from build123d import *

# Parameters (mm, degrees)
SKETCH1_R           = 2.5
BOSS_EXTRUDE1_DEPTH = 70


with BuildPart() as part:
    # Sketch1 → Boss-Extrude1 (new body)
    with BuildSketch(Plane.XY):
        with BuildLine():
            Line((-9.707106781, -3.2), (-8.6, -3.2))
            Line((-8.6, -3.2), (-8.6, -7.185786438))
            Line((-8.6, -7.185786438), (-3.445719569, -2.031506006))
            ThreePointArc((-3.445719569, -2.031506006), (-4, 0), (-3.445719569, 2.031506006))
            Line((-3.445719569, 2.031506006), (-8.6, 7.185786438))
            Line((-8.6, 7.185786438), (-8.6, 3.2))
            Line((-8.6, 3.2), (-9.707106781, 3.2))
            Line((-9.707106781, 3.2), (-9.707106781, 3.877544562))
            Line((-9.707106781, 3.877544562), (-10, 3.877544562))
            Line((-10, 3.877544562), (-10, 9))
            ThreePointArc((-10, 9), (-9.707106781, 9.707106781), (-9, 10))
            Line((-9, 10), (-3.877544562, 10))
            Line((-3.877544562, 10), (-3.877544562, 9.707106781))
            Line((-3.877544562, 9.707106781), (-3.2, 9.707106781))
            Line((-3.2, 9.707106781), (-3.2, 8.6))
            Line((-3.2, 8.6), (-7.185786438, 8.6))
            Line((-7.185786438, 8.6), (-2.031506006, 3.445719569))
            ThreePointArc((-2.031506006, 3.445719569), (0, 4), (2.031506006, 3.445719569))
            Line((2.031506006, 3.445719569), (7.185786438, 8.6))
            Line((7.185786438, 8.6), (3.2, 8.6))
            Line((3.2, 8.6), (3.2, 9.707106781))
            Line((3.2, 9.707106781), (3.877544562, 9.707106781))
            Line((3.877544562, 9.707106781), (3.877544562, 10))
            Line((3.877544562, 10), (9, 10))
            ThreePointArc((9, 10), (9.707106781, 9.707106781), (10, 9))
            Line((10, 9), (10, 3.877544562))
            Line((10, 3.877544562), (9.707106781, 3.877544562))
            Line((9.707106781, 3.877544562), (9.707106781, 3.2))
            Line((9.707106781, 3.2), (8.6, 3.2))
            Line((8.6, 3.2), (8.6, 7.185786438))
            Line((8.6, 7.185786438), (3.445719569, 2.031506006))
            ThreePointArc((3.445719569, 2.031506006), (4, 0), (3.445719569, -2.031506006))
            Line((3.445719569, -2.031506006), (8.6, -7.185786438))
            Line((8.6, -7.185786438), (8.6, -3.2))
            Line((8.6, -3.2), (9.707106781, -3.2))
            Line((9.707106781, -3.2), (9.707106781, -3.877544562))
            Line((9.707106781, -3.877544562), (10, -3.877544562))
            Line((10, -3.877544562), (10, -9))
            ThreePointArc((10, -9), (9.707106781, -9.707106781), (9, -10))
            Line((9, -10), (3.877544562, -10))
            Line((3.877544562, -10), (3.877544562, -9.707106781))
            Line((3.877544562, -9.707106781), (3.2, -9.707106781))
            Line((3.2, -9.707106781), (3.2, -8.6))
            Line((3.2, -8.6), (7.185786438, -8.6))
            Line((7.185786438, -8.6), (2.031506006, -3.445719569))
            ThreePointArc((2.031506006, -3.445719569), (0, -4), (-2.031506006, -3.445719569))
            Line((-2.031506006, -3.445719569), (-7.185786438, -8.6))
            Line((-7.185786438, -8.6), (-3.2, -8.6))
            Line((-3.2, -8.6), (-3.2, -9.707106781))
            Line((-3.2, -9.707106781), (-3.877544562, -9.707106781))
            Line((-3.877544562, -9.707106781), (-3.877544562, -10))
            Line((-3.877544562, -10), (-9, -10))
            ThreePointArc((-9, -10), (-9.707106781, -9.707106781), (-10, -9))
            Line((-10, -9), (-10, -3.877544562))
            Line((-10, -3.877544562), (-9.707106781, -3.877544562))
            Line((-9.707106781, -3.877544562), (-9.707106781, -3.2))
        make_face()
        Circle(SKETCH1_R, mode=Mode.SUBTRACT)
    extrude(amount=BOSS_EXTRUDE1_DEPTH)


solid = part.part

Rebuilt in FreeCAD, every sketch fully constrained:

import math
import FreeCAD as App
import Part
import Sketcher
Q = App.Units.Quantity

doc = App.newDocument("Part")
params = doc.addObject("Spreadsheet::Sheet", "Params")
for row, (alias, value) in enumerate([
    ("sketch1_diameter", "5 mm"),
    ("sketch1_radius", "1 mm"),
    ("sketch1_radius2", "4 mm"),
    ("pad1_length", "70 mm"),
], start=1):
    params.set(f"A{row}", alias)
    params.set(f"B{row}", "=" + value)
    params.setAlias(f"B{row}", alias)

body = doc.addObject("PartDesign::Body", "Body")

# Sketch on XY plane
sketch1 = body.newObject("Sketcher::SketchObject", "Sketch")
sketch1.AttachmentSupport = (doc.getObject("XY_Plane"), [""])
sketch1.MapMode = "FlatFace"
sketch1.addGeometry(Part.LineSegment(App.Vector(-8.6, -3.2, 0), App.Vector(-9.71, -3.2, 0)), False)
sketch1.addGeometry(Part.LineSegment(App.Vector(-9.71, -3.2, 0), App.Vector(-9.71, -3.88, 0)), False)
sketch1.addGeometry(Part.LineSegment(App.Vector(-9.71, -3.88, 0), App.Vector(-10, -3.88, 0)), False)
sketch1.addGeometry(Part.LineSegment(App.Vector(-10, -3.88, 0), App.Vector(-10, -9, 0)), False)
sketch1.addGeometry(Part.ArcOfCircle(Part.Circle(App.Vector(-9, -9, 0), App.Vector(0, 0, 1), 1), math.radians(-180), math.radians(-90)), False)
sketch1.addGeometry(Part.LineSegment(App.Vector(-9, -10, 0), App.Vector(-3.88, -10, 0)), False)
sketch1.addGeometry(Part.LineSegment(App.Vector(-3.88, -10, 0), App.Vector(-3.88, -9.71, 0)), False)
sketch1.addGeometry(Part.LineSegment(App.Vector(-3.88, -9.71, 0), App.Vector(-3.2, -9.71, 0)), False)
sketch1.addGeometry(Part.LineSegment(App.Vector(-3.2, -9.71, 0), App.Vector(-3.2, -8.6, 0)), False)
sketch1.addGeometry(Part.LineSegment(App.Vector(-3.2, -8.6, 0), App.Vector(-7.19, -8.6, 0)), False)
sketch1.addGeometry(Part.LineSegment(App.Vector(-7.19, -8.6, 0), App.Vector(-2.03, -3.45, 0)), False)
sketch1.addGeometry(Part.ArcOfCircle(Part.Circle(App.Vector(0, 0, 0), App.Vector(0, 0, 1), 4), math.radians(-121), math.radians(-59)), False)
sketch1.addGeometry(Part.LineSegment(App.Vector(2.03, -3.45, 0), App.Vector(7.19, -8.6, 0)), False)
sketch1.addGeometry(Part.LineSegment(App.Vector(7.19, -8.6, 0), App.Vector(3.2, -8.6, 0)), False)
sketch1.addGeometry(Part.LineSegment(App.Vector(3.2, -8.6, 0), App.Vector(3.2, -9.71, 0)), False)
sketch1.addGeometry(Part.LineSegment(App.Vector(3.2, -9.71, 0), App.Vector(3.88, -9.71, 0)), False)
sketch1.addGeometry(Part.LineSegment(App.Vector(3.88, -9.71, 0), App.Vector(3.88, -10, 0)), False)
sketch1.addGeometry(Part.LineSegment(App.Vector(3.88, -10, 0), App.Vector(9, -10, 0)), False)
sketch1.addGeometry(Part.ArcOfCircle(Part.Circle(App.Vector(9, -9, 0), App.Vector(0, 0, 1), 1), math.radians(-90), math.radians(0)), False)
sketch1.addGeometry(Part.LineSegment(App.Vector(10, -9, 0), App.Vector(10, -3.88, 0)), False)
sketch1.addGeometry(Part.LineSegment(App.Vector(10, -3.88, 0), App.Vector(9.71, -3.88, 0)), False)
sketch1.addGeometry(Part.LineSegment(App.Vector(9.71, -3.88, 0), App.Vector(9.71, -3.2, 0)), False)
sketch1.addGeometry(Part.LineSegment(App.Vector(9.71, -3.2, 0), App.Vector(8.6, -3.2, 0)), False)
sketch1.addGeometry(Part.LineSegment(App.Vector(8.6, -3.2, 0), App.Vector(8.6, -7.19, 0)), False)
sketch1.addGeometry(Part.LineSegment(App.Vector(8.6, -7.19, 0), App.Vector(3.45, -2.03, 0)), False)
sketch1.addGeometry(Part.ArcOfCircle(Part.Circle(App.Vector(0, 0, 0), App.Vector(0, 0, 1), 4), math.radians(-31), math.radians(31)), False)
sketch1.addGeometry(Part.LineSegment(App.Vector(3.45, 2.03, 0), App.Vector(8.6, 7.19, 0)), False)
sketch1.addGeometry(Part.LineSegment(App.Vector(8.6, 7.19, 0), App.Vector(8.6, 3.2, 0)), False)
sketch1.addGeometry(Part.LineSegment(App.Vector(8.6, 3.2, 0), App.Vector(9.71, 3.2, 0)), False)
sketch1.addGeometry(Part.LineSegment(App.Vector(9.71, 3.2, 0), App.Vector(9.71, 3.88, 0)), False)
sketch1.addGeometry(Part.LineSegment(App.Vector(9.71, 3.88, 0), App.Vector(10, 3.88, 0)), False)
sketch1.addGeometry(Part.LineSegment(App.Vector(10, 3.88, 0), App.Vector(10, 9, 0)), False)
sketch1.addGeometry(Part.ArcOfCircle(Part.Circle(App.Vector(9, 9, 0), App.Vector(0, 0, 1), 1), math.radians(0), math.radians(90)), False)
sketch1.addGeometry(Part.LineSegment(App.Vector(9, 10, 0), App.Vector(3.88, 10, 0)), False)
sketch1.addGeometry(Part.LineSegment(App.Vector(3.88, 10, 0), App.Vector(3.88, 9.71, 0)), False)
sketch1.addGeometry(Part.LineSegment(App.Vector(3.88, 9.71, 0), App.Vector(3.2, 9.71, 0)), False)
sketch1.addGeometry(Part.LineSegment(App.Vector(3.2, 9.71, 0), App.Vector(3.2, 8.6, 0)), False)
sketch1.addGeometry(Part.LineSegment(App.Vector(3.2, 8.6, 0), App.Vector(7.19, 8.6, 0)), False)
sketch1.addGeometry(Part.LineSegment(App.Vector(7.19, 8.6, 0), App.Vector(2.03, 3.45, 0)), False)
sketch1.addGeometry(Part.ArcOfCircle(Part.Circle(App.Vector(0, 0, 0), App.Vector(0, 0, 1), 4), math.radians(59), math.radians(121)), False)
sketch1.addGeometry(Part.LineSegment(App.Vector(-2.03, 3.45, 0), App.Vector(-7.19, 8.6, 0)), False)
sketch1.addGeometry(Part.LineSegment(App.Vector(-7.19, 8.6, 0), App.Vector(-3.2, 8.6, 0)), False)
sketch1.addGeometry(Part.LineSegment(App.Vector(-3.2, 8.6, 0), App.Vector(-3.2, 9.71, 0)), False)
sketch1.addGeometry(Part.LineSegment(App.Vector(-3.2, 9.71, 0), App.Vector(-3.88, 9.71, 0)), False)
sketch1.addGeometry(Part.LineSegment(App.Vector(-3.88, 9.71, 0), App.Vector(-3.88, 10, 0)), False)
sketch1.addGeometry(Part.LineSegment(App.Vector(-3.88, 10, 0), App.Vector(-9, 10, 0)), False)
sketch1.addGeometry(Part.ArcOfCircle(Part.Circle(App.Vector(-9, 9, 0), App.Vector(0, 0, 1), 1), math.radians(90), math.radians(180)), False)
sketch1.addGeometry(Part.LineSegment(App.Vector(-10, 9, 0), App.Vector(-10, 3.88, 0)), False)
sketch1.addGeometry(Part.LineSegment(App.Vector(-10, 3.88, 0), App.Vector(-9.71, 3.88, 0)), False)
sketch1.addGeometry(Part.LineSegment(App.Vector(-9.71, 3.88, 0), App.Vector(-9.71, 3.2, 0)), False)
sketch1.addGeometry(Part.LineSegment(App.Vector(-9.71, 3.2, 0), App.Vector(-8.6, 3.2, 0)), False)
sketch1.addGeometry(Part.LineSegment(App.Vector(-8.6, 3.2, 0), App.Vector(-8.6, 7.19, 0)), False)
sketch1.addGeometry(Part.LineSegment(App.Vector(-8.6, 7.19, 0), App.Vector(-3.45, 2.03, 0)), False)
sketch1.addGeometry(Part.ArcOfCircle(Part.Circle(App.Vector(0, 0, 0), App.Vector(0, 0, 1), 4), math.radians(149), math.radians(211)), False)
sketch1.addGeometry(Part.LineSegment(App.Vector(-3.45, -2.03, 0), App.Vector(-8.6, -7.19, 0)), False)
sketch1.addGeometry(Part.LineSegment(App.Vector(-8.6, -7.19, 0), App.Vector(-8.6, -3.2, 0)), False)
sketch1.addGeometry(Part.Circle(App.Vector(0, 0, 0), App.Vector(0, 0, 1), 2.5), False)
sketch1.addConstraint(Sketcher.Constraint("Coincident", 0, 2, 1, 1))
sketch1.addConstraint(Sketcher.Constraint("Coincident", 1, 2, 2, 1))
sketch1.addConstraint(Sketcher.Constraint("Coincident", 2, 2, 3, 1))
sketch1.addConstraint(Sketcher.Constraint("Tangent", 3, 2, 4, 1))
sketch1.addConstraint(Sketcher.Constraint("Tangent", 4, 2, 5, 1))
sketch1.addConstraint(Sketcher.Constraint("Coincident", 5, 2, 6, 1))
sketch1.addConstraint(Sketcher.Constraint("Coincident", 6, 2, 7, 1))
sketch1.addConstraint(Sketcher.Constraint("Coincident", 7, 2, 8, 1))
sketch1.addConstraint(Sketcher.Constraint("Coincident", 8, 2, 9, 1))
sketch1.addConstraint(Sketcher.Constraint("Coincident", 9, 2, 10, 1))
sketch1.addConstraint(Sketcher.Constraint("Coincident", 10, 2, 11, 1))
sketch1.addConstraint(Sketcher.Constraint("Coincident", 11, 2, 12, 1))
sketch1.addConstraint(Sketcher.Constraint("Coincident", 12, 2, 13, 1))
sketch1.addConstraint(Sketcher.Constraint("Coincident", 13, 2, 14, 1))
sketch1.addConstraint(Sketcher.Constraint("Coincident", 14, 2, 15, 1))
sketch1.addConstraint(Sketcher.Constraint("Coincident", 15, 2, 16, 1))
sketch1.addConstraint(Sketcher.Constraint("Coincident", 16, 2, 17, 1))
sketch1.addConstraint(Sketcher.Constraint("Tangent", 17, 2, 18, 1))
sketch1.addConstraint(Sketcher.Constraint("Tangent", 18, 2, 19, 1))
sketch1.addConstraint(Sketcher.Constraint("Coincident", 19, 2, 20, 1))
sketch1.addConstraint(Sketcher.Constraint("Coincident", 20, 2, 21, 1))
sketch1.addConstraint(Sketcher.Constraint("Coincident", 21, 2, 22, 1))
sketch1.addConstraint(Sketcher.Constraint("Coincident", 22, 2, 23, 1))
sketch1.addConstraint(Sketcher.Constraint("Coincident", 23, 2, 24, 1))
sketch1.addConstraint(Sketcher.Constraint("Coincident", 24, 2, 25, 1))
sketch1.addConstraint(Sketcher.Constraint("Coincident", 25, 2, 26, 1))
sketch1.addConstraint(Sketcher.Constraint("Coincident", 26, 2, 27, 1))
sketch1.addConstraint(Sketcher.Constraint("Coincident", 27, 2, 28, 1))
sketch1.addConstraint(Sketcher.Constraint("Coincident", 28, 2, 29, 1))
sketch1.addConstraint(Sketcher.Constraint("Coincident", 29, 2, 30, 1))
sketch1.addConstraint(Sketcher.Constraint("Coincident", 30, 2, 31, 1))
sketch1.addConstraint(Sketcher.Constraint("Tangent", 31, 2, 32, 1))
sketch1.addConstraint(Sketcher.Constraint("Tangent", 32, 2, 33, 1))
sketch1.addConstraint(Sketcher.Constraint("Coincident", 33, 2, 34, 1))
sketch1.addConstraint(Sketcher.Constraint("Coincident", 34, 2, 35, 1))
sketch1.addConstraint(Sketcher.Constraint("Coincident", 35, 2, 36, 1))
sketch1.addConstraint(Sketcher.Constraint("Coincident", 36, 2, 37, 1))
sketch1.addConstraint(Sketcher.Constraint("Coincident", 37, 2, 38, 1))
sketch1.addConstraint(Sketcher.Constraint("Coincident", 38, 2, 39, 1))
sketch1.addConstraint(Sketcher.Constraint("Coincident", 39, 2, 40, 1))
sketch1.addConstraint(Sketcher.Constraint("Coincident", 40, 2, 41, 1))
sketch1.addConstraint(Sketcher.Constraint("Coincident", 41, 2, 42, 1))
sketch1.addConstraint(Sketcher.Constraint("Coincident", 42, 2, 43, 1))
sketch1.addConstraint(Sketcher.Constraint("Coincident", 43, 2, 44, 1))
sketch1.addConstraint(Sketcher.Constraint("Coincident", 44, 2, 45, 1))
sketch1.addConstraint(Sketcher.Constraint("Tangent", 45, 2, 46, 1))
sketch1.addConstraint(Sketcher.Constraint("Tangent", 46, 2, 47, 1))
sketch1.addConstraint(Sketcher.Constraint("Coincident", 47, 2, 48, 1))
sketch1.addConstraint(Sketcher.Constraint("Coincident", 48, 2, 49, 1))
sketch1.addConstraint(Sketcher.Constraint("Coincident", 49, 2, 50, 1))
sketch1.addConstraint(Sketcher.Constraint("Coincident", 50, 2, 51, 1))
sketch1.addConstraint(Sketcher.Constraint("Coincident", 51, 2, 52, 1))
sketch1.addConstraint(Sketcher.Constraint("Coincident", 52, 2, 53, 1))
sketch1.addConstraint(Sketcher.Constraint("Coincident", 53, 2, 54, 1))
sketch1.addConstraint(Sketcher.Constraint("Coincident", 54, 2, 55, 1))
sketch1.addConstraint(Sketcher.Constraint("Coincident", 55, 2, 0, 1))
sketch1.addConstraint(Sketcher.Constraint("Horizontal", 0))
sketch1.addConstraint(Sketcher.Constraint("Vertical", 1))
sketch1.addConstraint(Sketcher.Constraint("Horizontal", 2))
sketch1.addConstraint(Sketcher.Constraint("Vertical", 3))
sketch1.addConstraint(Sketcher.Constraint("Horizontal", 5))
sketch1.addConstraint(Sketcher.Constraint("Vertical", 6))
sketch1.addConstraint(Sketcher.Constraint("Horizontal", 7))
sketch1.addConstraint(Sketcher.Constraint("Vertical", 8))
sketch1.addConstraint(Sketcher.Constraint("Horizontal", 9))
sketch1.addConstraint(Sketcher.Constraint("Horizontal", 13))
sketch1.addConstraint(Sketcher.Constraint("Vertical", 14))
sketch1.addConstraint(Sketcher.Constraint("Horizontal", 15))
sketch1.addConstraint(Sketcher.Constraint("Vertical", 16))
sketch1.addConstraint(Sketcher.Constraint("Horizontal", 17))
sketch1.addConstraint(Sketcher.Constraint("Vertical", 19))
sketch1.addConstraint(Sketcher.Constraint("Horizontal", 20))
sketch1.addConstraint(Sketcher.Constraint("Vertical", 21))
sketch1.addConstraint(Sketcher.Constraint("Horizontal", 22))
sketch1.addConstraint(Sketcher.Constraint("Vertical", 23))
sketch1.addConstraint(Sketcher.Constraint("Vertical", 27))
sketch1.addConstraint(Sketcher.Constraint("Horizontal", 28))
sketch1.addConstraint(Sketcher.Constraint("Vertical", 29))
sketch1.addConstraint(Sketcher.Constraint("Horizontal", 30))
sketch1.addConstraint(Sketcher.Constraint("Vertical", 31))
sketch1.addConstraint(Sketcher.Constraint("Horizontal", 33))
sketch1.addConstraint(Sketcher.Constraint("Vertical", 34))
sketch1.addConstraint(Sketcher.Constraint("Horizontal", 35))
sketch1.addConstraint(Sketcher.Constraint("Vertical", 36))
sketch1.addConstraint(Sketcher.Constraint("Horizontal", 37))
sketch1.addConstraint(Sketcher.Constraint("Horizontal", 41))
sketch1.addConstraint(Sketcher.Constraint("Vertical", 42))
sketch1.addConstraint(Sketcher.Constraint("Horizontal", 43))
sketch1.addConstraint(Sketcher.Constraint("Vertical", 44))
sketch1.addConstraint(Sketcher.Constraint("Horizontal", 45))
sketch1.addConstraint(Sketcher.Constraint("Vertical", 47))
sketch1.addConstraint(Sketcher.Constraint("Horizontal", 48))
sketch1.addConstraint(Sketcher.Constraint("Vertical", 49))
sketch1.addConstraint(Sketcher.Constraint("Horizontal", 50))
sketch1.addConstraint(Sketcher.Constraint("Vertical", 51))
sketch1.addConstraint(Sketcher.Constraint("Vertical", 55))
sketch1.addConstraint(Sketcher.Constraint("Coincident", 11, 3, -1, 1))
sketch1.addConstraint(Sketcher.Constraint("Coincident", 25, 3, -1, 1))
sketch1.addConstraint(Sketcher.Constraint("Coincident", 39, 3, -1, 1))
sketch1.addConstraint(Sketcher.Constraint("Coincident", 53, 3, -1, 1))
sketch1.addConstraint(Sketcher.Constraint("Coincident", 56, 3, -1, 1))
sketch1.addConstraint(Sketcher.Constraint("Equal", 4, 18))
sketch1.addConstraint(Sketcher.Constraint("Equal", 11, 25))
sketch1.addConstraint(Sketcher.Constraint("Equal", 18, 32))
sketch1.addConstraint(Sketcher.Constraint("Equal", 25, 39))
sketch1.addConstraint(Sketcher.Constraint("Equal", 32, 46))
sketch1.addConstraint(Sketcher.Constraint("Equal", 39, 53))
sketch1.addConstraint(Sketcher.Constraint("Symmetric", 4, 3, 32, 3, -1, 1))
sketch1.addConstraint(Sketcher.Constraint("Symmetric", 18, 3, 46, 3, -1, 1))
sketch1.addConstraint(Sketcher.Constraint("Symmetric", 0, 2, 28, 2, -1, 1))
sketch1.addConstraint(Sketcher.Constraint("Symmetric", 6, 2, 34, 2, -1, 1))
sketch1.addConstraint(Sketcher.Constraint("Symmetric", 8, 2, 36, 2, -1, 1))
sketch1.addConstraint(Sketcher.Constraint("Symmetric", 12, 2, 40, 2, -1, 1))
sketch1.addConstraint(Sketcher.Constraint("Symmetric", 14, 2, 42, 2, -1, 1))
sketch1.addConstraint(Sketcher.Constraint("Symmetric", 20, 2, 48, 2, -1, 1))
sketch1.addConstraint(Sketcher.Constraint("Symmetric", 22, 2, 50, 2, -1, 1))
sketch1.addConstraint(Sketcher.Constraint("Symmetric", 26, 2, 54, 2, -1, 1))
sketch1.addConstraint(Sketcher.Constraint("Symmetric", 4, 3, 18, 3, -2))
sketch1.addConstraint(Sketcher.Constraint("Symmetric", 9, 2, 12, 2, -2))
sketch1.addConstraint(Sketcher.Constraint("Symmetric", 7, 2, 14, 2, -2))
sketch1.addConstraint(Sketcher.Constraint("Symmetric", 1, 2, 20, 2, -2))
sketch1.addConstraint(Sketcher.Constraint("Symmetric", 27, 2, 50, 2, -2))
sketch1.addConstraint(Sketcher.Constraint("Perpendicular", 10, 12))
sketch1.addConstraint(Sketcher.Constraint("Parallel", 12, 24))
sketch1.addConstraint(Sketcher.Constraint("Perpendicular", 24, 26))
sketch1.addConstraint(Sketcher.Constraint("Parallel", 26, 38))
sketch1.addConstraint(Sketcher.Constraint("Perpendicular", 38, 40))
sketch1.addConstraint(Sketcher.Constraint("Parallel", 40, 52))
sketch1.addConstraint(Sketcher.Constraint("Perpendicular", 52, 54))
sketch1.addConstraint(Sketcher.Constraint("Horizontal", 10, 2, 11, 2))
sketch1.addConstraint(Sketcher.Constraint("Horizontal", 38, 2, 39, 2))
sketch1.addConstraint(Sketcher.Constraint("Horizontal", 30, 2, 47, 2))
sketch1.addConstraint(Sketcher.Constraint("Horizontal", 26, 2, 51, 2))
sketch1.addConstraint(Sketcher.Constraint("Horizontal", 24, 2, 53, 2))
sketch1.addConstraint(Sketcher.Constraint("Vertical", 16, 2, 33, 2))
sketch1.addConstraint(Sketcher.Constraint("Vertical", 6, 2, 43, 2))
sketch1.addConstraint(Sketcher.Constraint("Equal", 43, 1))
sketch1.addConstraint(Sketcher.Constraint("Equal", 45, 3))
sketch1.addConstraint(Sketcher.Constraint("Equal", 48, 6))
sketch1.addConstraint(Sketcher.Constraint("Equal", 50, 8))
sketch1.addConstraint(Sketcher.Constraint("Equal", 41, 23))
sketch1.addConstraint(Sketcher.Constraint("Equal", 12, 24))
sketch1.addConstraint(Sketcher.Constraint("Diameter", 56, Q("5 mm")))
sketch1.addConstraint(Sketcher.Constraint("Radius", 4, Q("1 mm")))
sketch1.addConstraint(Sketcher.Constraint("Radius", 11, Q("4 mm")))
sketch1.addConstraint(Sketcher.Constraint("DistanceX", 4, 3, -1, 1, Q("9 mm")))
sketch1.addConstraint(Sketcher.Constraint("DistanceY", 0, 2, -1, 1, Q("3.2 mm")))
sketch1.addConstraint(Sketcher.Constraint("DistanceY", 8, 2, -1, 1, Q("8.6 mm")))
sketch1.addConstraint(Sketcher.Constraint("DistanceX", 0, 2, 0, 1, Q("1.107107 mm")))
sketch1.addConstraint(Sketcher.Constraint("DistanceX", 5, 1, 5, 2, Q("5.122455 mm")))
sketch1.addConstraint(Sketcher.Constraint("DistanceX", 9, 2, 9, 1, Q("3.985786 mm")))
sketch1.setExpression("Constraints[142]", "Params.sketch1_diameter")
sketch1.setExpression("Constraints[143]", "Params.sketch1_radius")
sketch1.setExpression("Constraints[144]", "Params.sketch1_radius2")
pad1 = body.newObject("PartDesign::Pad", "Pad")
pad1.Profile = sketch1
pad1.setExpression("Length", "Params.pad1_length")

doc.recompute()
